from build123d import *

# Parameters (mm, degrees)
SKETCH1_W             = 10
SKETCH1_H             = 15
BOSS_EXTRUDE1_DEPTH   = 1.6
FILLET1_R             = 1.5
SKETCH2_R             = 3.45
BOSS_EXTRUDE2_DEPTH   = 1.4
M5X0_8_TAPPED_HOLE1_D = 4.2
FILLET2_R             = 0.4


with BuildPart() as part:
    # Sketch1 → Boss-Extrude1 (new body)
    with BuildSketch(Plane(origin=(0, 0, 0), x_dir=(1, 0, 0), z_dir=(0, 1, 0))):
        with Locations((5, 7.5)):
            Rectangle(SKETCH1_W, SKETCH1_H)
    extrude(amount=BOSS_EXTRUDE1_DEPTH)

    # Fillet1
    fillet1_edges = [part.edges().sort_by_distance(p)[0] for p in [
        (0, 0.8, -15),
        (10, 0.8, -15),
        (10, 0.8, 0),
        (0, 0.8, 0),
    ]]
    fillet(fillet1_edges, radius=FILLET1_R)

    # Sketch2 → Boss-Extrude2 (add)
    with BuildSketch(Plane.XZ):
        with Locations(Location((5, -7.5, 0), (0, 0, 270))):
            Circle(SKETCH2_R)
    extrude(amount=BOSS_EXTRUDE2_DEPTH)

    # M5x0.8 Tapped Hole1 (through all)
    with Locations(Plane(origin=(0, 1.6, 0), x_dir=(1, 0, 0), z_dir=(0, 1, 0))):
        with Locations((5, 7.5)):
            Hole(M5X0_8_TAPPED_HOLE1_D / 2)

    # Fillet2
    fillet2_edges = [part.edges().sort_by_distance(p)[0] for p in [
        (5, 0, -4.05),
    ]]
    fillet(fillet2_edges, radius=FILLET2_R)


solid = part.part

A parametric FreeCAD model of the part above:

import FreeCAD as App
import Part
import Sketcher

V = App.Vector
Q = App.Units.Quantity


def edges_at(feature, points):
    """Names of the edges that pass closest to the given points."""
    edges = feature.Shape.Edges
    near = lambda p: min(range(len(edges)), key=lambda i: edges[i].distToShape(Part.Vertex(*p))[0])
    return sorted({f"Edge{near(p) + 1}" for p in points})

doc = App.newDocument("Part")
body = doc.addObject("PartDesign::Body", "Body")

# Sketch on XZ plane
sketch1 = body.newObject("Sketcher::SketchObject", "Sketch")
sketch1.AttachmentSupport = (doc.getObject("XZ_Plane"), [""])
sketch1.MapMode = "FlatFace"
sketch1.addGeometry([
    Part.LineSegment(V(0, -15, 0), V(0, 0, 0)),
    Part.LineSegment(V(0, 0, 0), V(10, 0, 0)),
    Part.LineSegment(V(10, 0, 0), V(10, -15, 0)),
    Part.LineSegment(V(10, -15, 0), V(0, -15, 0)),
], False)
sketch1.addConstraint([
    Sketcher.Constraint("Coincident", 0, 2, 1, 1),
    Sketcher.Constraint("Coincident", 1, 2, 2, 1),
    Sketcher.Constraint("Coincident", 2, 2, 3, 1),
    Sketcher.Constraint("Coincident", 3, 2, 0, 1),
    Sketcher.Constraint("Vertical", 0),
    Sketcher.Constraint("Horizontal", 1),
    Sketcher.Constraint("Vertical", 2),
    Sketcher.Constraint("Horizontal", 3),
    Sketcher.Constraint("Coincident", 0, 2, -1, 1),
    Sketcher.Constraint("DistanceX", 1, 1, 1, 2, Q("10 mm")),
    Sketcher.Constraint("DistanceY", 0, 1, 0, 2, Q("15 mm")),
])
pad1 = body.newObject("PartDesign::Pad", "Pad")
pad1.Profile = sketch1
pad1.Length = 1.6
pad1.Reversed = True
doc.recompute()

fillet = body.newObject("PartDesign::Fillet", "Fillet")
fillet.Base = (pad1, edges_at(pad1, [
    (0, 0.8, -15),
    (10, 0.8, -15),
    (10, 0.8, 0),
    (0, 0.8, 0),
]))
fillet.Radius = 1.5

# Sketch on XZ plane
sketch2 = body.newObject("Sketcher::SketchObject", "Sketch001")
sketch2.AttachmentSupport = (doc.getObject("XZ_Plane"), [""])
sketch2.MapMode = "FlatFace"
sketch2.addGeometry(Part.Circle(V(5, -7.5, 0), V(0, 0, 1), 3.5), False)
sketch2.addConstraint([
    Sketcher.Constraint("Diameter", 0, Q("6.9 mm")),
    Sketcher.Constraint("DistanceX", -1, 1, 0, 3, Q("5 mm")),
    Sketcher.Constraint("DistanceY", 0, 3, -1, 1, Q("7.5 mm")),
])
pad2 = body.newObject("PartDesign::Pad", "Pad001")
pad2.Profile = sketch2
pad2.Length = 1.4

# Sketch on XZ plane
sketch3 = body.newObject("Sketcher::SketchObject", "Sketch002")
sketch3.AttachmentSupport = (doc.getObject("XZ_Plane"), [""])
sketch3.MapMode = "FlatFace"
sketch3.AttachmentOffset = App.Placement(V(0, 0, -1.6), App.Rotation())
sketch3.addGeometry(Part.Circle(V(5, -7.5, 0), V(0, 0, 1), 2.1), False)
sketch3.addConstraint([
    Sketcher.Constraint("Diameter", 0, Q("4.2 mm")),
    Sketcher.Constraint("DistanceX", -1, 1, 0, 3, Q("5 mm")),
    Sketcher.Constraint("DistanceY", 0, 3, -1, 1, Q("7.5 mm")),
])
doc.recompute()
hole = body.newObject("PartDesign::Hole", "Hole")
hole.Profile = sketch3
hole.ThreadType = "None"
hole.Diameter = 4.2
hole.DepthType = "ThroughAll"
hole.Reversed = True
doc.recompute()

fillet2 = body.newObject("PartDesign::Fillet", "Fillet001")
fillet2.Base = (hole, edges_at(hole, [(5, 0, -4.05)]))
fillet2.Radius = 0.4

doc.recompute()
